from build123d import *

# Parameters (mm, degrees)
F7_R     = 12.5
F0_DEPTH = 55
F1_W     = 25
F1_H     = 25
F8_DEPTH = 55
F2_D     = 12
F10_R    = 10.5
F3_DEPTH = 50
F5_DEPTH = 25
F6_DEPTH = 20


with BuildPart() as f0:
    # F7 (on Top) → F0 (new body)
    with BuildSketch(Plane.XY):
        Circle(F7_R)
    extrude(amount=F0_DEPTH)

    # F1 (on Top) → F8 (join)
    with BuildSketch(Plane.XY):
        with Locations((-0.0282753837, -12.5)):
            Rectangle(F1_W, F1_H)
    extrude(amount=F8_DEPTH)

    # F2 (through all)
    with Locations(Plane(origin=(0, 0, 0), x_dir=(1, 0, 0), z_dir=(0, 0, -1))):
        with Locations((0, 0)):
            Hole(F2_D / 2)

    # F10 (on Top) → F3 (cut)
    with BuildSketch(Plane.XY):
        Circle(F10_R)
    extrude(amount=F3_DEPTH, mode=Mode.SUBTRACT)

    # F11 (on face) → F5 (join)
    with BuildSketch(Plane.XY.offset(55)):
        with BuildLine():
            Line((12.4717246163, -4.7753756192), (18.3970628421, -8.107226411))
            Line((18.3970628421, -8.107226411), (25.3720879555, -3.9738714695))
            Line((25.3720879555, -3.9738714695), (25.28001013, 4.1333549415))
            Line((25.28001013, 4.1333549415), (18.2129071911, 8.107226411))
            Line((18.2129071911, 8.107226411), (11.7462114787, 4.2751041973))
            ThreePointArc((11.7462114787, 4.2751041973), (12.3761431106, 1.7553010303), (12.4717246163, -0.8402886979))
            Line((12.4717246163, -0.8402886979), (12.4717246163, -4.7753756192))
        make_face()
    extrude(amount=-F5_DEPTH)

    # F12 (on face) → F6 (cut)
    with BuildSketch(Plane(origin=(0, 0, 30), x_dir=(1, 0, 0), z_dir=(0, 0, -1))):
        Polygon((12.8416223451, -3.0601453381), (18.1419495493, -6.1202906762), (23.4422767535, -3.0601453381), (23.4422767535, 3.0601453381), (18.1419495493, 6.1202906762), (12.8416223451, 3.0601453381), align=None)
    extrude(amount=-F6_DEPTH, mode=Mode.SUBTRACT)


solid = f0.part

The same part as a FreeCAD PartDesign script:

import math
import FreeCAD as App
import Part
import Sketcher
from FreeCAD import Vector
Q = App.Units.Quantity


def add_polygon(sketch, points):
    """Adds a closed chain of lines whose ends are joined by coincident constraints."""
    first, n = sketch.GeometryCount, len(points)
    for a, b in zip(points, points[1:] + points[:1]):
        sketch.addGeometry(Part.LineSegment(App.Vector(*a, 0), App.Vector(*b, 0)), False)
    for i in range(n):
        sketch.addConstraint(Sketcher.Constraint("Coincident", first + i, 2, first + (i + 1) % n, 1))

doc = App.newDocument("Part")
body = doc.addObject("PartDesign::Body", "Body")

# Sketch on XY plane
sketch1 = body.newObject("Sketcher::SketchObject", "Sketch")
sketch1.AttachmentSupport = (doc.getObject("XY_Plane"), [""])
sketch1.MapMode = "FlatFace"
sketch1.addGeometry(Part.Circle(Vector(0, 0, 0), Vector(0, 0, 1), 12), False)
sketch1.addConstraint([
    Sketcher.Constraint("Coincident", 0, 3, -1, 1),
    Sketcher.Constraint("Diameter", 0, Q("25 mm")),
])
pad1 = body.newObject("PartDesign::Pad", "Pad")
pad1.Profile = sketch1
pad1.Length = 55

# Sketch on XY plane
sketch2 = body.newObject("Sketcher::SketchObject", "Sketch001")
sketch2.AttachmentSupport = (doc.getObject("XY_Plane"), [""])
sketch2.MapMode = "FlatFace"
add_polygon(sketch2, [(-13, 0), (-13, -25), (12, -25), (12, 0)])  # lines 0-3
sketch2.addConstraint([
    Sketcher.Constraint("Vertical", 0),
    Sketcher.Constraint("Horizontal", 1),
    Sketcher.Constraint("Vertical", 2),
    Sketcher.Constraint("Horizontal", 3),
    Sketcher.Constraint("PointOnObject", 2, 2, -1),
    Sketcher.Constraint("Equal", 3, 0),
    Sketcher.Constraint("DistanceX", 1, 1, 1, 2, Q("25 mm")),
    Sketcher.Constraint("DistanceX", 0, 2, -1, 1, Q("12.528275 mm")),
])
pad2 = body.newObject("PartDesign::Pad", "Pad001")
pad2.Profile = sketch2
pad2.Length = 55

# Sketch on XY plane
sketch3 = body.newObject("Sketcher::SketchObject", "Sketch002")
sketch3.AttachmentSupport = (doc.getObject("XY_Plane"), [""])
sketch3.MapMode = "FlatFace"
sketch3.addGeometry(Part.Circle(Vector(0, 0, 0), Vector(0, 0, 1), 6), False)
sketch3.addConstraint([
    Sketcher.Constraint("Coincident", 0, 3, -1, 1),
    Sketcher.Constraint("Diameter", 0, Q("12 mm")),
])
doc.recompute()
hole = body.newObject("PartDesign::Hole", "Hole")
hole.Profile = sketch3
hole.ThreadType = "None"
hole.Diameter = 12
hole.DepthType = "ThroughAll"
hole.Reversed = True

# Sketch on XY plane
sketch4 = body.newObject("Sketcher::SketchObject", "Sketch003")
sketch4.AttachmentSupport = (doc.getObject("XY_Plane"), [""])
sketch4.MapMode = "FlatFace"
sketch4.addGeometry(Part.Circle(Vector(0, 0, 0), Vector(0, 0, 1), 10), False)
sketch4.addConstraint([
    Sketcher.Constraint("Coincident", 0, 3, -1, 1),
    Sketcher.Constraint("Diameter", 0, Q("21 mm")),
])
pocket1 = body.newObject("PartDesign::Pocket", "Pocket")
pocket1.Profile = sketch4
pocket1.Length = 50
pocket1.Reversed = True

# Sketch on XY plane
sketch5 = body.newObject("Sketcher::SketchObject", "Sketch004")
sketch5.AttachmentSupport = (doc.getObject("XY_Plane"), [""])
sketch5.MapMode = "FlatFace"
sketch5.AttachmentOffset = App.Placement(Vector(0, 0, 55), App.Rotation())
sketch5.addGeometry([
    Part.LineSegment(Vector(12.5, -4.8, 0), Vector(18.4, -8.1, 0)),  # 0
    Part.LineSegment(Vector(18.4, -8.1, 0), Vector(25.4, -4, 0)),  # 1
    Part.LineSegment(Vector(25.4, -4, 0), Vector(25.3, 4.1, 0)),  # 2
    Part.LineSegment(Vector(25.3, 4.1, 0), Vector(18.2, 8.1, 0)),  # 3
    Part.LineSegment(Vector(18.2, 8.1, 0), Vector(11.7, 4.3, 0)),  # 4
    Part.ArcOfCircle(Part.Circle(Vector(0, 0, 0), Vector(0, 0, 1), 12.5), math.radians(-4), math.radians(20)),  # 5
    Part.LineSegment(Vector(12.5, -0.8, 0), Vector(12.5, -4.8, 0)),  # 6
], False)
sketch5.addConstraint([
    Sketcher.Constraint("Coincident", 0, 2, 1, 1),
    Sketcher.Constraint("Coincident", 1, 2, 2, 1),
    Sketcher.Constraint("Coincident", 2, 2, 3, 1),
    Sketcher.Constraint("Coincident", 3, 2, 4, 1),
    Sketcher.Constraint("Coincident", 4, 2, 5, 2),
    Sketcher.Constraint("Coincident", 5, 1, 6, 1),
    Sketcher.Constraint("Coincident", 6, 2, 0, 1),
    Sketcher.Constraint("Vertical", 6),
    Sketcher.Constraint("Coincident", 5, 3, -1, 1),
    Sketcher.Constraint("Parallel", 0, 3),
    Sketcher.Constraint("Parallel", 1, 4),
    Sketcher.Constraint("Equal", 1, 2),
    Sketcher.Constraint("Equal", 2, 3),
    Sketcher.Constraint("Radius", 5, Q("12.5 mm")),
    Sketcher.Constraint("DistanceX", 4, 2, 2, 2, Q("13.533799 mm")),
    Sketcher.Constraint("Distance", 1, Q("8.107749 mm")),
    Sketcher.Constraint("Distance", 4, Q("7.516869 mm")),
    Sketcher.Constraint("DistanceY", 6, 2, 6, 1, Q("3.935087 mm")),
    Sketcher.Constraint("DistanceY", 1, 2, -1, 1, Q("3.973871 mm")),
    Sketcher.Constraint("DistanceX", -1, 1, 2, 2, Q("25.28001 mm")),
    Sketcher.Constraint("DistanceY", 5, 1, -1, 1, Q("0.840289 mm")),
])
pad3 = body.newObject("PartDesign::Pad", "Pad002")
pad3.Profile = sketch5
pad3.Length = 25
pad3.Reversed = True

# Sketch on XY plane
sketch6 = body.newObject("Sketcher::SketchObject", "Sketch005")
sketch6.AttachmentSupport = (doc.getObject("XY_Plane"), [""])
sketch6.MapMode = "FlatFace"
sketch6.AttachmentOffset = App.Placement(Vector(0, 0, 30), App.Rotation())
add_polygon(sketch6, [(13, 3), (18, 6), (23, 3), (23, -3), (18, -6), (13, -3)])  # lines 0-5
sketch6.addConstraint([
    Sketcher.Constraint("Vertical", 2),
    Sketcher.Constraint("Vertical", 5),
    Sketcher.Constraint("Symmetric", 0, 2, 3, 2, -1),
    Sketcher.Constraint("Parallel", 0, 3),
    Sketcher.Constraint("Parallel", 1, 4),
    Sketcher.Constraint("Horizontal", 2, 2, 4, 2),
    Sketcher.Constraint("Horizontal", 1, 2, 5, 2),
    Sketcher.Constraint("Angle", 0, Q("30 deg")),
    Sketcher.Constraint("DistanceY", 2, 2, 2, 1, Q("6.120291 mm")),
    Sketcher.Constraint("Distance", 0, Q("6.120291 mm")),
    Sketcher.Constraint("DistanceX", -1, 1, 0, 2, Q("18.14195 mm")),
])
pocket2 = body.newObject("PartDesign::Pocket", "Pocket001")
pocket2.Profile = sketch6
pocket2.Length = 20
pocket2.Reversed = True

doc.recompute()
